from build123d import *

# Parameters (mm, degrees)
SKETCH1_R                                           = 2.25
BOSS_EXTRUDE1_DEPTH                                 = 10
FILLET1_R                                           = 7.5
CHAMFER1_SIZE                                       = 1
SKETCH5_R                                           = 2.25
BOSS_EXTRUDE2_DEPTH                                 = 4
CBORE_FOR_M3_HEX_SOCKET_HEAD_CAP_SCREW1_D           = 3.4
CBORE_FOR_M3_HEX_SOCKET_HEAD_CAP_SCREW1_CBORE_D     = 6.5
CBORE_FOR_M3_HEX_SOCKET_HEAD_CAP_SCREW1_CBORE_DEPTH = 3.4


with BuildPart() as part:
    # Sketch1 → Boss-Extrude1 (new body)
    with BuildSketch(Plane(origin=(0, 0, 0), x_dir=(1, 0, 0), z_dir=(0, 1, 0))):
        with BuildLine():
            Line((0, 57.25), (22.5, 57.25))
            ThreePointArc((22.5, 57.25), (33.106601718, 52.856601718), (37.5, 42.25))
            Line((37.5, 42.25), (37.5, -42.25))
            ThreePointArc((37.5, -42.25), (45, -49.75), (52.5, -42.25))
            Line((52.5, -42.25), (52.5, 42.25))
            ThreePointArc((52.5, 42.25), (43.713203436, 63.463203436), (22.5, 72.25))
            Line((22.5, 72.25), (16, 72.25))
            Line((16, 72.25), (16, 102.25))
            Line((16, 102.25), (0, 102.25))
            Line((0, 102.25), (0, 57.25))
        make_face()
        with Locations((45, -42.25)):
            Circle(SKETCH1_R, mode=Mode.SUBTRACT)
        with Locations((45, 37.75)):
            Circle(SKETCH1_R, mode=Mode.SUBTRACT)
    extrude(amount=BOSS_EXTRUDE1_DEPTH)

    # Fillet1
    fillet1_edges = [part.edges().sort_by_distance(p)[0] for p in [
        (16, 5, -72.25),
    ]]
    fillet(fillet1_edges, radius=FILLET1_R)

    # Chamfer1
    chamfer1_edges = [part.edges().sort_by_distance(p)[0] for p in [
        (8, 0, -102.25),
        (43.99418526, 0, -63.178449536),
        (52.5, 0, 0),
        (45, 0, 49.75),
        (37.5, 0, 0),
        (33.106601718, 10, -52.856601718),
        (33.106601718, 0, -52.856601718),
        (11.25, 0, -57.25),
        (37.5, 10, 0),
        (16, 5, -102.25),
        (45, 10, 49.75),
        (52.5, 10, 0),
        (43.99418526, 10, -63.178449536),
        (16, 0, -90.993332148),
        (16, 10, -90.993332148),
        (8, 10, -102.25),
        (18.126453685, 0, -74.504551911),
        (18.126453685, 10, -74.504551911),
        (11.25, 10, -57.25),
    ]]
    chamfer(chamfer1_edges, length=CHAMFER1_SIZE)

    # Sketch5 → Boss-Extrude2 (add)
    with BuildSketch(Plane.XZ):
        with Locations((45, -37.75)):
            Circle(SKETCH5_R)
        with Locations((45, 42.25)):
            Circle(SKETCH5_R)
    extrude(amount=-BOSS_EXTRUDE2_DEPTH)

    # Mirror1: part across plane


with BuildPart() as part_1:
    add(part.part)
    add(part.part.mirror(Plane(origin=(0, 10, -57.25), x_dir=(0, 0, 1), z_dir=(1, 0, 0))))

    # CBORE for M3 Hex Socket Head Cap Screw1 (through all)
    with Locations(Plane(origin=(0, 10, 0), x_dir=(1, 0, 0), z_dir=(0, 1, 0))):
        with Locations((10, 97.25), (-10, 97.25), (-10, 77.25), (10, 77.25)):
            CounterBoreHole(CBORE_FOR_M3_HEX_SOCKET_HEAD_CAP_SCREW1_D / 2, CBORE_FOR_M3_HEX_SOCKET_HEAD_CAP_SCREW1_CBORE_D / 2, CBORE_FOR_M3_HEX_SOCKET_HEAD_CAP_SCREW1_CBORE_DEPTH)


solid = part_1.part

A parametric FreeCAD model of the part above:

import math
import FreeCAD as App
import Part
import Sketcher
from FreeCAD import Vector


def edges_at(feature, points):
    """Names of the edges that pass closest to the given points."""
    edges = feature.Shape.Edges
    near = lambda p: min(range(len(edges)), key=lambda i: edges[i].distToShape(Part.Vertex(*p))[0])
    return sorted({f"Edge{near(p) + 1}" for p in points})

doc = App.newDocument("Part")
params = doc.addObject("Spreadsheet::Sheet", "Params")
for row, (alias, value) in enumerate([
    ("sketch1_radius", "15 mm"),
    ("sketch1_radius2", "30 mm"),
    ("sketch1_diameter", "4.5 mm"),
    ("sketch1_width", "16 mm"),
    ("sketch1_height", "30 mm"),
    ("pad1_length", "10 mm"),
    ("fillet_radius", "7.5 mm"),
    ("chamfer_size", "1 mm"),
    ("sketch2_diameter", "4.5 mm"),
    ("pad2_length", "4 mm"),
    ("sketch3_diameter", "3.4 mm"),
    ("hole_diameter", "3.4 mm"),
    ("hole_cbore_diameter", "6.5 mm"),
    ("hole_cbore_depth", "3.4 mm"),
], start=1):
    params.set(f"A{row}", alias)
    params.set(f"B{row}", "=" + value)
    params.setAlias(f"B{row}", alias)

body = doc.addObject("PartDesign::Body", "Body")

# Sketch on XZ plane
sketch1 = body.newObject("Sketcher::SketchObject", "Sketch")
sketch1.AttachmentSupport = (doc.getObject("XZ_Plane"), [""])
sketch1.MapMode = "FlatFace"
sketch1.addGeometry([
    Part.LineSegment(Vector(0, -57.2, 0), Vector(22.5, -57.2, 0)),  # 0
    Part.ArcOfCircle(Part.Circle(Vector(22.5, -42.3, 0), Vector(0, 0, 1), 15), math.radians(-90), math.radians(0)),  # 1
    Part.LineSegment(Vector(37.5, -42.2, 0), Vector(37.5, 42.2, 0)),  # 2
    Part.ArcOfCircle(Part.Circle(Vector(45, 42.2, 0), Vector(0, 0, 1), 7.5), math.radians(0), math.radians(180)),  # 3
    Part.LineSegment(Vector(52.5, 42.2, 0), Vector(52.5, -42.2, 0)),  # 4
    Part.ArcOfCircle(Part.Circle(Vector(22.5, -42.3, 0), Vector(0, 0, 1), 30), math.radians(-90), math.radians(0)),  # 5
    Part.LineSegment(Vector(22.5, -72.2, 0), Vector(16, -72.2, 0)),  # 6
    Part.LineSegment(Vector(16, -72.2, 0), Vector(16, -102.2, 0)),  # 7
    Part.LineSegment(Vector(16, -102.2, 0), Vector(0, -102.2, 0)),  # 8
    Part.LineSegment(Vector(0, -102.2, 0), Vector(0, -57.2, 0)),  # 9
    Part.Circle(Vector(45, 42.2, 0), Vector(0, 0, 1), 2.2),  # 10
    Part.Circle(Vector(45, -37.8, 0), Vector(0, 0, 1), 2.2),  # 11
], False)
sketch1.addConstraint([
    Sketcher.Constraint("Tangent", 0, 2, 1, 1),
    Sketcher.Constraint("Tangent", 1, 2, 2, 1),
    Sketcher.Constraint("Tangent", 2, 2, 3, 2),
    Sketcher.Constraint("Tangent", 3, 1, 4, 1),
    Sketcher.Constraint("Tangent", 4, 2, 5, 2),
    Sketcher.Constraint("Tangent", 5, 1, 6, 1),
    Sketcher.Constraint("Coincident", 6, 2, 7, 1),
    Sketcher.Constraint("Coincident", 7, 2, 8, 1),
    Sketcher.Constraint("Coincident", 8, 2, 9, 1),
    Sketcher.Constraint("Coincident", 9, 2, 0, 1),
    Sketcher.Constraint("Horizontal", 0),
    Sketcher.Constraint("Vertical", 2),
    Sketcher.Constraint("Vertical", 4),
    Sketcher.Constraint("Horizontal", 6),
    Sketcher.Constraint("Vertical", 7),
    Sketcher.Constraint("Horizontal", 8),
    Sketcher.Constraint("Vertical", 9),
    Sketcher.Constraint("Coincident", 5, 3, 1, 3),
    Sketcher.Constraint("Coincident", 10, 3, 3, 3),
    Sketcher.Constraint("Equal", 10, 11),
    Sketcher.Constraint("PointOnObject", 8, 2, -2),
    Sketcher.Constraint("Vertical", 10, 3, 11, 3),
    Sketcher.Constraint("Radius", 1, 15.0),
    Sketcher.Constraint("Radius", 5, 30.0),
    Sketcher.Constraint("Diameter", 10, 4.5),
    Sketcher.Constraint("DistanceX", 8, 2, 8, 1, 16.0),
    Sketcher.Constraint("DistanceY", 7, 2, 7, 1, 30.0),
    Sketcher.Constraint("DistanceX", 0, 1, 0, 2, 22.5),
    Sketcher.Constraint("DistanceY", 2, 1, 2, 2, 84.5),
    Sketcher.Constraint("DistanceY", 11, 3, 3, 3, 80.0),
    Sketcher.Constraint("DistanceY", 1, 3, -1, 1, 42.25),
])
sketch1.setExpression("Constraints[22]", "Params.sketch1_radius")
sketch1.setExpression("Constraints[23]", "Params.sketch1_radius2")
sketch1.setExpression("Constraints[24]", "Params.sketch1_diameter")
sketch1.setExpression("Constraints[25]", "Params.sketch1_width")
sketch1.setExpression("Constraints[26]", "Params.sketch1_height")
pad1 = body.newObject("PartDesign::Pad", "Pad")
pad1.Profile = sketch1
pad1.setExpression("Length", "Params.pad1_length")
pad1.Reversed = True
doc.recompute()

fillet = body.newObject("PartDesign::Fillet", "Fillet")
fillet.Base = (pad1, edges_at(pad1, [(16, 5, -72.25)]))
fillet.setExpression("Radius", "Params.fillet_radius")
doc.recompute()

chamfer = body.newObject("PartDesign::Chamfer", "Chamfer")
chamfer.Base = (fillet, edges_at(fillet, [
    (8, 0, -102.25),
    (43.994, 0, -63.178),
    (52.5, 0, 0),
    (45, 0, 49.75),
    (37.5, 0, 0),
    (33.107, 10, -52.857),
    (33.107, 0, -52.857),
    (11.25, 0, -57.25),
    (37.5, 10, 0),
    (16, 5, -102.25),
    (45, 10, 49.75),
    (52.5, 10, 0),
    (43.994, 10, -63.178),
    (16, 0, -90.993),
    (16, 10, -90.993),
    (8, 10, -102.25),
    (18.126, 0, -74.505),
    (18.126, 10, -74.505),
    (11.25, 10, -57.25),
]))
chamfer.setExpression("Size", "Params.chamfer_size")

# Sketch on XZ plane
sketch2 = body.newObject("Sketcher::SketchObject", "Sketch001")
sketch2.AttachmentSupport = (doc.getObject("XZ_Plane"), [""])
sketch2.MapMode = "FlatFace"
sketch2.addGeometry([
    Part.Circle(Vector(45, -37.8, 0), Vector(0, 0, 1), 2.2),
    Part.Circle(Vector(45, 42.2, 0), Vector(0, 0, 1), 2.2),
], False)
sketch2.addConstraint([
    Sketcher.Constraint("Equal", 0, 1),
    Sketcher.Constraint("Vertical", 0, 3, 1, 3),
    Sketcher.Constraint("Diameter", 0, 4.5),
    Sketcher.Constraint("DistanceX", -1, 1, 0, 3, 45.0),
    Sketcher.Constraint("DistanceY", 0, 3, 1, 3, 80.0),
    Sketcher.Constraint("DistanceY", 0, 3, -1, 1, 37.75),
])
sketch2.setExpression("Constraints[2]", "Params.sketch2_diameter")
pad2 = body.newObject("PartDesign::Pad", "Pad001")
pad2.Profile = sketch2
pad2.setExpression("Length", "Params.pad2_length")
pad2.Reversed = True
body2 = doc.addObject("PartDesign::Body", "Body001")
doc.recompute()

body2.BaseFeature = body
doc.recompute()

mirroring = doc.addObject("Part::Mirroring", "Mirroring")
mirroring.Source = body
mirroring.Base = Vector(0, 10, -57.25)
mirroring.Normal = Vector(1, 0, 0)
body3 = doc.addObject("PartDesign::Body", "Body002")
body3.BaseFeature = mirroring
boolean = body2.newObject("PartDesign::Boolean", "Boolean")
boolean.Type = "Fuse"
boolean.addObjects([body3])
doc.recompute()

# Sketch on XZ plane
sketch3 = body2.newObject("Sketcher::SketchObject", "Sketch002")
sketch3.AttachmentSupport = (doc.getObject("XZ_Plane001"), [""])
sketch3.MapMode = "FlatFace"
sketch3.AttachmentOffset = App.Placement(Vector(0, 0, -10), App.Rotation())
sketch3.addGeometry([
    Part.Circle(Vector(10, -97.2, 0), Vector(0, 0, 1), 1.7),
    Part.Circle(Vector(-10, -97.2, 0), Vector(0, 0, 1), 1.7),
    Part.Circle(Vector(-10, -77.2, 0), Vector(0, 0, 1), 1.7),
    Part.Circle(Vector(10, -77.2, 0), Vector(0, 0, 1), 1.7),
], False)
sketch3.addConstraint([
    Sketcher.Constraint("Equal", 0, 1),
    Sketcher.Constraint("Equal", 1, 2),
    Sketcher.Constraint("Equal", 2, 3),
    Sketcher.Constraint("Symmetric", 0, 3, 1, 3, -2),
    Sketcher.Constraint("Symmetric", 2, 3, 3, 3, -2),
    Sketcher.Constraint("Vertical", 1, 3, 2, 3),
    Sketcher.Constraint("Diameter", 0, 3.4),
    Sketcher.Constraint("DistanceX", -1, 1, 0, 3, 10.0),
    Sketcher.Constraint("DistanceY", 1, 3, 2, 3, 20.0),
    Sketcher.Constraint("DistanceY", 0, 3, -1, 1, 97.25),
])
sketch3.setExpression("Constraints[6]", "Params.sketch3_diameter")
doc.recompute()
hole = body2.newObject("PartDesign::Hole", "Hole")
hole.Profile = sketch3
hole.ThreadType = "None"
hole.setExpression("Diameter", "Params.hole_diameter")
hole.DepthType = "ThroughAll"
hole.HoleCutType = "Counterbore"
hole.setExpression("HoleCutDiameter", "Params.hole_cbore_diameter")
hole.setExpression("HoleCutDepth", "Params.hole_cbore_depth")
hole.Reversed = True
mirroring.Visibility = False

doc.recompute()
